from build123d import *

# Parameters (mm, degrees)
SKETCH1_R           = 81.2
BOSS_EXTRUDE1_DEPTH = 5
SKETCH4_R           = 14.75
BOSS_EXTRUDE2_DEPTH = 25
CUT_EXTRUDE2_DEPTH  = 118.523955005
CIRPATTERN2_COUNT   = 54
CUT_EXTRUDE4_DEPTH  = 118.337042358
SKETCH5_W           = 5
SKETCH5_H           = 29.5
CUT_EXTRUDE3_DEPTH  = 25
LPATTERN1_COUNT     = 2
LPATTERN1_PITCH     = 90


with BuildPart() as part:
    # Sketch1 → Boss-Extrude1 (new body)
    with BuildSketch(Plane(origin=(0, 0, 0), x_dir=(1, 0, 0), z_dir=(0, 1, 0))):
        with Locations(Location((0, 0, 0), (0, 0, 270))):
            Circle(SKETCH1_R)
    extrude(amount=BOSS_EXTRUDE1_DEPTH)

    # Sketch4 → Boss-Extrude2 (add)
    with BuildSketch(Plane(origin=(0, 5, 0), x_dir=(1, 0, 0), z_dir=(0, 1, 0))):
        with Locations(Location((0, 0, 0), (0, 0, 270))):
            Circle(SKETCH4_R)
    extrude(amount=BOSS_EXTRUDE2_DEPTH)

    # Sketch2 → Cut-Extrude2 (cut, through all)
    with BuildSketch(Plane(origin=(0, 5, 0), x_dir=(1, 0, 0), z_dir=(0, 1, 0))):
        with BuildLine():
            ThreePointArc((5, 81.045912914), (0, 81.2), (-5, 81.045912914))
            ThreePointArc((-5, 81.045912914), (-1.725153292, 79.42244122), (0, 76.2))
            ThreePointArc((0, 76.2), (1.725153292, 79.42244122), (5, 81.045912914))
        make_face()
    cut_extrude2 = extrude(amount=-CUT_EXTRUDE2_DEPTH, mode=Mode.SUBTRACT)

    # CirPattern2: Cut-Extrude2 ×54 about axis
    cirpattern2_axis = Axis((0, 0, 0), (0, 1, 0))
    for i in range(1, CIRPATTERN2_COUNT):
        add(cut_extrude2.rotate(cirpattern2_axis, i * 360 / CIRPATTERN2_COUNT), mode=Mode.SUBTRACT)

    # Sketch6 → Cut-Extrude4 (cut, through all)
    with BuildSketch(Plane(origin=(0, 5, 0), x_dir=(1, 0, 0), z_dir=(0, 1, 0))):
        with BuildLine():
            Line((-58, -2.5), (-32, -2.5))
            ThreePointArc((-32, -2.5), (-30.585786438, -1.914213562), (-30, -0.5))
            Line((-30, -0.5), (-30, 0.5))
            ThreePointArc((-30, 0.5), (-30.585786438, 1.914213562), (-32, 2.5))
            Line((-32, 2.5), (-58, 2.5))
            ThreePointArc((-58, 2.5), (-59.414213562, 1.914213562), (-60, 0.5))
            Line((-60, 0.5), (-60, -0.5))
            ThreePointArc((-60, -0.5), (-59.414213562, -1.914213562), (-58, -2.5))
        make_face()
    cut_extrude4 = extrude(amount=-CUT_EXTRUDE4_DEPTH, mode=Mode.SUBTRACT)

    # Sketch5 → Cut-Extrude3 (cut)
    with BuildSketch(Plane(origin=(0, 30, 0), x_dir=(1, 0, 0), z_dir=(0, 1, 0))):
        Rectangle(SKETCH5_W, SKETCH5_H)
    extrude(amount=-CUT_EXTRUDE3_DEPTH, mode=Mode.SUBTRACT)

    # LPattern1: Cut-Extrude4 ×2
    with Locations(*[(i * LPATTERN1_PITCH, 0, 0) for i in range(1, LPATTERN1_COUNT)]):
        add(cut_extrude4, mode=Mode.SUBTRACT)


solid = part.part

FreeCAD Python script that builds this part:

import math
import FreeCAD as App
import Part
import Sketcher
from FreeCAD import Vector

doc = App.newDocument("Part")
params = doc.addObject("Spreadsheet::Sheet", "Params")
for row, (alias, value) in enumerate([
    ("sketch1_diameter", "162.4 mm"),
    ("pad1_length", "5 mm"),
    ("sketch2_diameter", "29.5 mm"),
    ("pad2_length", "25 mm"),
    ("sketch3_radius", "6 mm"),
    ("sketch3_radius2", "81.2 mm"),
    ("sketch4_radius", "2 mm"),
    ("sketch4_width", "26 mm"),
    ("sketch4_height", "1 mm"),
    ("sketch5_width", "5 mm"),
    ("sketch5_height", "29.5 mm"),
    ("pocket3_length", "25 mm"),
    ("linearpattern_pitch", "90 mm"),
], start=1):
    params.set(f"A{row}", alias)
    params.set(f"B{row}", "=" + value)
    params.setAlias(f"B{row}", alias)

body = doc.addObject("PartDesign::Body", "Body")

# Sketch on XZ plane
sketch1 = body.newObject("Sketcher::SketchObject", "Sketch")
sketch1.AttachmentSupport = (doc.getObject("XZ_Plane"), [""])
sketch1.MapMode = "FlatFace"
sketch1.addGeometry(Part.Circle(Vector(0, 0, 0), Vector(0, 0, 1), 81), False)
sketch1.addConstraint(Sketcher.Constraint("Coincident", 0, 3, -1, 1))
sketch1.addConstraint(Sketcher.Constraint("Diameter", 0, 162.4))
sketch1.setExpression("Constraints[1]", "Params.sketch1_diameter")
pad1 = body.newObject("PartDesign::Pad", "Pad")
pad1.Profile = sketch1
pad1.setExpression("Length", "Params.pad1_length")
pad1.Reversed = True

# Sketch on XZ plane
sketch2 = body.newObject("Sketcher::SketchObject", "Sketch001")
sketch2.AttachmentSupport = (doc.getObject("XZ_Plane"), [""])
sketch2.MapMode = "FlatFace"
sketch2.AttachmentOffset = App.Placement(Vector(0, 0, -5), App.Rotation())
sketch2.addGeometry(Part.Circle(Vector(0, 0, 0), Vector(0, 0, 1), 15), False)
sketch2.addConstraint(Sketcher.Constraint("Coincident", 0, 3, -1, 1))
sketch2.addConstraint(Sketcher.Constraint("Diameter", 0, 29.5))
sketch2.setExpression("Constraints[1]", "Params.sketch2_diameter")
pad2 = body.newObject("PartDesign::Pad", "Pad001")
pad2.Profile = sketch2
pad2.setExpression("Length", "Params.pad2_length")
pad2.Reversed = True

# Sketch on XZ plane
sketch3 = body.newObject("Sketcher::SketchObject", "Sketch002")
sketch3.AttachmentSupport = (doc.getObject("XZ_Plane"), [""])
sketch3.MapMode = "FlatFace"
sketch3.AttachmentOffset = App.Placement(Vector(0, 0, -5), App.Rotation())
sketch3.addGeometry(Part.ArcOfCircle(Part.Circle(Vector(0, 0, 0), Vector(0, 0, 1), 81), math.radians(-93.53), math.radians(-86.47)), False)
sketch3.addGeometry(Part.ArcOfCircle(Part.Circle(Vector(-6, -75, 0), Vector(0, 0, 1), 6), math.radians(-81), math.radians(-10)), False)
sketch3.addGeometry(Part.ArcOfCircle(Part.Circle(Vector(6, -75, 0), Vector(0, 0, 1), 6), math.radians(-170), math.radians(-99)), False)
sketch3.addConstraint(Sketcher.Constraint("Coincident", 0, 1, 1, 1))
sketch3.addConstraint(Sketcher.Constraint("Coincident", 1, 2, 2, 1))
sketch3.addConstraint(Sketcher.Constraint("Coincident", 2, 2, 0, 2))
sketch3.addConstraint(Sketcher.Constraint("Coincident", 0, 3, -1, 1))
sketch3.addConstraint(Sketcher.Constraint("Equal", 1, 2))
sketch3.addConstraint(Sketcher.Constraint("Symmetric", 1, 3, 2, 3, -2))
sketch3.addConstraint(Sketcher.Constraint("Radius", 1, 6.0))
sketch3.addConstraint(Sketcher.Constraint("Radius", 0, 81.2))
sketch3.addConstraint(Sketcher.Constraint("DistanceX", 0, 1, -1, 1, 5.0))
sketch3.addConstraint(Sketcher.Constraint("DistanceY", 1, 2, -1, 1, 76.2))
sketch3.setExpression("Constraints[6]", "Params.sketch3_radius")
sketch3.setExpression("Constraints[7]", "Params.sketch3_radius2")
pocket1 = body.newObject("PartDesign::Pocket", "Pocket")
pocket1.Profile = sketch3
pocket1.Type = "ThroughAll"
pocket1.Reversed = True
doc.recompute()

polarpattern = body.newObject("PartDesign::PolarPattern", "PolarPattern")
polarpattern.Originals = [pocket1]
polarpattern.Axis = (doc.getObject("Y_Axis"), [""])
polarpattern.Angle = 360
polarpattern.Occurrences = 54
body.Tip = polarpattern

# Sketch on XZ plane
sketch4 = body.newObject("Sketcher::SketchObject", "Sketch003")
sketch4.AttachmentSupport = (doc.getObject("XZ_Plane"), [""])
sketch4.MapMode = "FlatFace"
sketch4.AttachmentOffset = App.Placement(Vector(0, 0, -5), App.Rotation())
sketch4.addGeometry(Part.LineSegment(Vector(-58, 2.5, 0), Vector(-32, 2.5, 0)), False)
sketch4.addGeometry(Part.ArcOfCircle(Part.Circle(Vector(-32, 0.5, 0), Vector(0, 0, 1), 2), math.radians(0), math.radians(90)), False)
sketch4.addGeometry(Part.LineSegment(Vector(-30, 0.5, 0), Vector(-30, -0.5, 0)), False)
sketch4.addGeometry(Part.ArcOfCircle(Part.Circle(Vector(-32, -0.5, 0), Vector(0, 0, 1), 2), math.radians(-90), math.radians(0)), False)
sketch4.addGeometry(Part.LineSegment(Vector(-32, -2.5, 0), Vector(-58, -2.5, 0)), False)
sketch4.addGeometry(Part.ArcOfCircle(Part.Circle(Vector(-58, -0.5, 0), Vector(0, 0, 1), 2), math.radians(-180), math.radians(-90)), False)
sketch4.addGeometry(Part.LineSegment(Vector(-60, -0.5, 0), Vector(-60, 0.5, 0)), False)
sketch4.addGeometry(Part.ArcOfCircle(Part.Circle(Vector(-58, 0.5, 0), Vector(0, 0, 1), 2), math.radians(90), math.radians(180)), False)
sketch4.addConstraint(Sketcher.Constraint("Tangent", 0, 2, 1, 2))
sketch4.addConstraint(Sketcher.Constraint("Tangent", 1, 1, 2, 1))
sketch4.addConstraint(Sketcher.Constraint("Tangent", 2, 2, 3, 2))
sketch4.addConstraint(Sketcher.Constraint("Tangent", 3, 1, 4, 1))
sketch4.addConstraint(Sketcher.Constraint("Tangent", 4, 2, 5, 2))
sketch4.addConstraint(Sketcher.Constraint("Tangent", 5, 1, 6, 1))
sketch4.addConstraint(Sketcher.Constraint("Tangent", 6, 2, 7, 2))
sketch4.addConstraint(Sketcher.Constraint("Tangent", 7, 1, 0, 1))
sketch4.addConstraint(Sketcher.Constraint("Horizontal", 0))
sketch4.addConstraint(Sketcher.Constraint("Vertical", 2))
sketch4.addConstraint(Sketcher.Constraint("Horizontal", 4))
sketch4.addConstraint(Sketcher.Constraint("Vertical", 6))
sketch4.addConstraint(Sketcher.Constraint("Equal", 1, 3))
sketch4.addConstraint(Sketcher.Constraint("Equal", 3, 5))
sketch4.addConstraint(Sketcher.Constraint("Equal", 5, 7))
sketch4.addConstraint(Sketcher.Constraint("Radius", 1, 2.0))
sketch4.addConstraint(Sketcher.Constraint("DistanceX", 0, 1, 0, 2, 26.0))
sketch4.addConstraint(Sketcher.Constraint("DistanceY", 2, 2, 2, 1, 1.0))
sketch4.addConstraint(Sketcher.Constraint("DistanceX", 1, 3, -1, 1, 32.0))
sketch4.addConstraint(Sketcher.Constraint("DistanceY", -1, 1, 1, 3, 0.5))
sketch4.setExpression("Constraints[15]", "Params.sketch4_radius")
sketch4.setExpression("Constraints[16]", "Params.sketch4_width")
sketch4.setExpression("Constraints[17]", "Params.sketch4_height")
pocket2 = body.newObject("PartDesign::Pocket", "Pocket001")
pocket2.Profile = sketch4
pocket2.Type = "ThroughAll"
pocket2.Reversed = True

# Sketch on XZ plane
sketch5 = body.newObject("Sketcher::SketchObject", "Sketch004")
sketch5.AttachmentSupport = (doc.getObject("XZ_Plane"), [""])
sketch5.MapMode = "FlatFace"
sketch5.AttachmentOffset = App.Placement(Vector(0, 0, -30), App.Rotation())
sketch5.addGeometry(Part.LineSegment(Vector(-2, -15, 0), Vector(-2, 15, 0)), False)
sketch5.addGeometry(Part.LineSegment(Vector(-2, 15, 0), Vector(2, 15, 0)), False)
sketch5.addGeometry(Part.LineSegment(Vector(2, 15, 0), Vector(2, -15, 0)), False)
sketch5.addGeometry(Part.LineSegment(Vector(2, -15, 0), Vector(-2, -15, 0)), False)
sketch5.addConstraint(Sketcher.Constraint("Coincident", 0, 2, 1, 1))
sketch5.addConstraint(Sketcher.Constraint("Coincident", 1, 2, 2, 1))
sketch5.addConstraint(Sketcher.Constraint("Coincident", 2, 2, 3, 1))
sketch5.addConstraint(Sketcher.Constraint("Coincident", 3, 2, 0, 1))
sketch5.addConstraint(Sketcher.Constraint("Vertical", 0))
sketch5.addConstraint(Sketcher.Constraint("Horizontal", 1))
sketch5.addConstraint(Sketcher.Constraint("Vertical", 2))
sketch5.addConstraint(Sketcher.Constraint("Horizontal", 3))
sketch5.addConstraint(Sketcher.Constraint("Symmetric", 0, 2, 2, 2, -1, 1))
sketch5.addConstraint(Sketcher.Constraint("DistanceX", 1, 1, 1, 2, 5.0))
sketch5.addConstraint(Sketcher.Constraint("DistanceY", 0, 1, 0, 2, 29.5))
sketch5.setExpression("Constraints[9]", "Params.sketch5_width")
sketch5.setExpression("Constraints[10]", "Params.sketch5_height")
pocket3 = body.newObject("PartDesign::Pocket", "Pocket002")
pocket3.Profile = sketch5
pocket3.setExpression("Length", "Params.pocket3_length")
pocket3.Reversed = True
doc.recompute()

linearpattern = body.newObject("PartDesign::LinearPattern", "LinearPattern")
linearpattern.Originals = [pocket2]
linearpattern.Direction = (doc.getObject("X_Axis"), [""])
linearpattern.Mode = "offset"
linearpattern.setExpression("Offset", "Params.linearpattern_pitch")
linearpattern.Occurrences = 2
body.Tip = linearpattern

doc.recompute()
